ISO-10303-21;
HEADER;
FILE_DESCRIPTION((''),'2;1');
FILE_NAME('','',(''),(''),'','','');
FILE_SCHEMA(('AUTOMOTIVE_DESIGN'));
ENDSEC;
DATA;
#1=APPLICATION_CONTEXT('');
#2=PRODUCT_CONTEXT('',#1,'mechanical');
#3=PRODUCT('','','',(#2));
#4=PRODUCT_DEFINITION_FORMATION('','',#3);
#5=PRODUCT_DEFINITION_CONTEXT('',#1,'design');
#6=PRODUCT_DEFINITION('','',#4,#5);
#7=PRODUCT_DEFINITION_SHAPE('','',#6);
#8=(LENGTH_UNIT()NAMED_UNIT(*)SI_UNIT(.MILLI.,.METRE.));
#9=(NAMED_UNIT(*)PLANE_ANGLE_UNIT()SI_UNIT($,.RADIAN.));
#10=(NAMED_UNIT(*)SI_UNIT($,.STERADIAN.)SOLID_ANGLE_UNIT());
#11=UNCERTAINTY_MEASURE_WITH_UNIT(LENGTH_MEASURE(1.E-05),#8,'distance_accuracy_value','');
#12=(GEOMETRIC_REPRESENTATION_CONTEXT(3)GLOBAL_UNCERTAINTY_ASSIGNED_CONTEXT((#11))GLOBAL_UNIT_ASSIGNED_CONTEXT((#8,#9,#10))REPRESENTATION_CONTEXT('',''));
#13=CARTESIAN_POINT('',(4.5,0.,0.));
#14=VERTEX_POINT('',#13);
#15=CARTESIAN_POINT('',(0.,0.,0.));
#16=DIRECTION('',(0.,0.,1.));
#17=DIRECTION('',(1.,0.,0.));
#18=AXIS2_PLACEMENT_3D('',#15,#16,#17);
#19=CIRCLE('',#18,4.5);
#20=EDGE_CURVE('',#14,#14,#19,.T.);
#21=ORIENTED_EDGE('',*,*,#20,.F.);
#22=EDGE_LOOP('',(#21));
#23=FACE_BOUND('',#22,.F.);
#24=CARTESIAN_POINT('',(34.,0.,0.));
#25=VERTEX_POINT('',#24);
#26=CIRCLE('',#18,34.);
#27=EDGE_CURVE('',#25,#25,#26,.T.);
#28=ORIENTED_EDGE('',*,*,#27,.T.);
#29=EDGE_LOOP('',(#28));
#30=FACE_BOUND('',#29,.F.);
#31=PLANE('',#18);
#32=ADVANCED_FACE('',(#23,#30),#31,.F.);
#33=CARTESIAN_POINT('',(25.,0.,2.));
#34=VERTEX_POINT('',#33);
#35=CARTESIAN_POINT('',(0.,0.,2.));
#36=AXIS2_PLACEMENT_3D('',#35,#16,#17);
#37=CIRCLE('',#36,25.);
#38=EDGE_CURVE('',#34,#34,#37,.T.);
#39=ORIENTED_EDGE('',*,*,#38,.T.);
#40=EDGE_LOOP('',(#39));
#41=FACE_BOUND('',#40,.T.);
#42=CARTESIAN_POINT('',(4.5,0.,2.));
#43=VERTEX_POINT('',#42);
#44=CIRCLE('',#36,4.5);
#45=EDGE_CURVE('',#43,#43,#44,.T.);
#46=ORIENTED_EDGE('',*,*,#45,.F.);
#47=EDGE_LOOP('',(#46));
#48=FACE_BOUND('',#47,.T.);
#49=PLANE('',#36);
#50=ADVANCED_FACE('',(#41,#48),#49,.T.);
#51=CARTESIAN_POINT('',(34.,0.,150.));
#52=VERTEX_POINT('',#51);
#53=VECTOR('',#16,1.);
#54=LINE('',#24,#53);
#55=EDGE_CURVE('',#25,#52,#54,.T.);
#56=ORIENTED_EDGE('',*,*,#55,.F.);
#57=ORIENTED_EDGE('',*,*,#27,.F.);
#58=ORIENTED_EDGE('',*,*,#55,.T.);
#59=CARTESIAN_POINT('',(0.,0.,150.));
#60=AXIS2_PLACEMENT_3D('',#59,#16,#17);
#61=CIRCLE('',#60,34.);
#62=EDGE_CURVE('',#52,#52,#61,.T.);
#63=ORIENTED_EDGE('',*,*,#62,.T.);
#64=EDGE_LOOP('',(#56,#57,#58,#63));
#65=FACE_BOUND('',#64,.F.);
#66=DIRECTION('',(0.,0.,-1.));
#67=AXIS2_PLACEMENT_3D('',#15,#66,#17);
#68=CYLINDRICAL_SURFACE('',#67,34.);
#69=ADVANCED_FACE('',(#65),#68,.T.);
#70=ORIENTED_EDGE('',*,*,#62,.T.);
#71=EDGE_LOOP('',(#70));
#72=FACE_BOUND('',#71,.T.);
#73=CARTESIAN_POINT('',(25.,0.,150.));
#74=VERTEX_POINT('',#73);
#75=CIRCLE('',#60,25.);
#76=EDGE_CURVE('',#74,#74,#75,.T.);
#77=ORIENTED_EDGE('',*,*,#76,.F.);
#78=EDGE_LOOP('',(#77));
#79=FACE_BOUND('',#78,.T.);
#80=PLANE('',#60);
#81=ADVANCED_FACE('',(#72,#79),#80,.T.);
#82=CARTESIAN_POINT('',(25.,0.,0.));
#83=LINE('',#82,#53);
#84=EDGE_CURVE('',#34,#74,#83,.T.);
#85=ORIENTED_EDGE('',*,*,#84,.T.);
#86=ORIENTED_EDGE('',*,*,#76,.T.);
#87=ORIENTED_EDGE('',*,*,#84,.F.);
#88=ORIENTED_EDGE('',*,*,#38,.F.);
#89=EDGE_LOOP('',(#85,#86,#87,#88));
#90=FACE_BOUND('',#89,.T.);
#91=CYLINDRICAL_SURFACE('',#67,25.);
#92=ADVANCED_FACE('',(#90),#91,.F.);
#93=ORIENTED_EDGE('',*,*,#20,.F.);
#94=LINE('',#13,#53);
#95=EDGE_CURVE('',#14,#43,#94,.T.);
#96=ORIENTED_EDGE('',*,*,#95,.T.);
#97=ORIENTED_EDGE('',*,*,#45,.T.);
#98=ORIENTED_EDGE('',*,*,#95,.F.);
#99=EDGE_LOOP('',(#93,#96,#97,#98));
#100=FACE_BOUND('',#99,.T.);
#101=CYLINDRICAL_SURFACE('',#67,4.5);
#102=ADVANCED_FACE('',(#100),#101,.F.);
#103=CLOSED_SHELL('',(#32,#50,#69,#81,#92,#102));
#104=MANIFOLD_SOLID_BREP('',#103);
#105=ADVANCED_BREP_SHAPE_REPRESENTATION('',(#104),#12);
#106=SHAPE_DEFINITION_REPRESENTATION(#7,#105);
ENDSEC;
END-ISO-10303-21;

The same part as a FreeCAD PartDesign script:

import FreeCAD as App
import Part
import Sketcher

V = App.Vector
Q = App.Units.Quantity

doc = App.newDocument("Part")
body = doc.addObject("PartDesign::Body", "Body")

# Sketch on XY plane
sketch1 = body.newObject("Sketcher::SketchObject", "Sketch")
sketch1.AttachmentSupport = (doc.getObject("XY_Plane"), [""])
sketch1.MapMode = "FlatFace"
sketch1.addGeometry([
    Part.Circle(V(0, 0, 0), V(0, 0, 1), 34),
    Part.Circle(V(0, 0, 0), V(0, 0, 1), 25),
], False)
sketch1.addConstraint([
    Sketcher.Constraint("Coincident", 0, 3, -1, 1),
    Sketcher.Constraint("Coincident", 1, 3, -1, 1),
    Sketcher.Constraint("Diameter", 0, Q("68 mm")),
    Sketcher.Constraint("Diameter", 1, Q("50 mm")),
])
pad1 = body.newObject("PartDesign::Pad", "Pad")
pad1.Profile = sketch1
pad1.Length = 150

# Sketch on XY plane
sketch2 = body.newObject("Sketcher::SketchObject", "Sketch001")
sketch2.AttachmentSupport = (doc.getObject("XY_Plane"), [""])
sketch2.MapMode = "FlatFace"
sketch2.addGeometry([
    Part.Circle(V(0, 0, 0), V(0, 0, 1), 25),
    Part.Circle(V(0, 0, 0), V(0, 0, 1), 4.5),
], False)
sketch2.addConstraint([
    Sketcher.Constraint("Coincident", 0, 3, -1, 1),
    Sketcher.Constraint("Coincident", 1, 3, -1, 1),
    Sketcher.Constraint("Diameter", 0, Q("50 mm")),
    Sketcher.Constraint("Diameter", 1, Q("9 mm")),
])
pad2 = body.newObject("PartDesign::Pad", "Pad001")
pad2.Profile = sketch2
pad2.Length = 2

doc.recompute()
